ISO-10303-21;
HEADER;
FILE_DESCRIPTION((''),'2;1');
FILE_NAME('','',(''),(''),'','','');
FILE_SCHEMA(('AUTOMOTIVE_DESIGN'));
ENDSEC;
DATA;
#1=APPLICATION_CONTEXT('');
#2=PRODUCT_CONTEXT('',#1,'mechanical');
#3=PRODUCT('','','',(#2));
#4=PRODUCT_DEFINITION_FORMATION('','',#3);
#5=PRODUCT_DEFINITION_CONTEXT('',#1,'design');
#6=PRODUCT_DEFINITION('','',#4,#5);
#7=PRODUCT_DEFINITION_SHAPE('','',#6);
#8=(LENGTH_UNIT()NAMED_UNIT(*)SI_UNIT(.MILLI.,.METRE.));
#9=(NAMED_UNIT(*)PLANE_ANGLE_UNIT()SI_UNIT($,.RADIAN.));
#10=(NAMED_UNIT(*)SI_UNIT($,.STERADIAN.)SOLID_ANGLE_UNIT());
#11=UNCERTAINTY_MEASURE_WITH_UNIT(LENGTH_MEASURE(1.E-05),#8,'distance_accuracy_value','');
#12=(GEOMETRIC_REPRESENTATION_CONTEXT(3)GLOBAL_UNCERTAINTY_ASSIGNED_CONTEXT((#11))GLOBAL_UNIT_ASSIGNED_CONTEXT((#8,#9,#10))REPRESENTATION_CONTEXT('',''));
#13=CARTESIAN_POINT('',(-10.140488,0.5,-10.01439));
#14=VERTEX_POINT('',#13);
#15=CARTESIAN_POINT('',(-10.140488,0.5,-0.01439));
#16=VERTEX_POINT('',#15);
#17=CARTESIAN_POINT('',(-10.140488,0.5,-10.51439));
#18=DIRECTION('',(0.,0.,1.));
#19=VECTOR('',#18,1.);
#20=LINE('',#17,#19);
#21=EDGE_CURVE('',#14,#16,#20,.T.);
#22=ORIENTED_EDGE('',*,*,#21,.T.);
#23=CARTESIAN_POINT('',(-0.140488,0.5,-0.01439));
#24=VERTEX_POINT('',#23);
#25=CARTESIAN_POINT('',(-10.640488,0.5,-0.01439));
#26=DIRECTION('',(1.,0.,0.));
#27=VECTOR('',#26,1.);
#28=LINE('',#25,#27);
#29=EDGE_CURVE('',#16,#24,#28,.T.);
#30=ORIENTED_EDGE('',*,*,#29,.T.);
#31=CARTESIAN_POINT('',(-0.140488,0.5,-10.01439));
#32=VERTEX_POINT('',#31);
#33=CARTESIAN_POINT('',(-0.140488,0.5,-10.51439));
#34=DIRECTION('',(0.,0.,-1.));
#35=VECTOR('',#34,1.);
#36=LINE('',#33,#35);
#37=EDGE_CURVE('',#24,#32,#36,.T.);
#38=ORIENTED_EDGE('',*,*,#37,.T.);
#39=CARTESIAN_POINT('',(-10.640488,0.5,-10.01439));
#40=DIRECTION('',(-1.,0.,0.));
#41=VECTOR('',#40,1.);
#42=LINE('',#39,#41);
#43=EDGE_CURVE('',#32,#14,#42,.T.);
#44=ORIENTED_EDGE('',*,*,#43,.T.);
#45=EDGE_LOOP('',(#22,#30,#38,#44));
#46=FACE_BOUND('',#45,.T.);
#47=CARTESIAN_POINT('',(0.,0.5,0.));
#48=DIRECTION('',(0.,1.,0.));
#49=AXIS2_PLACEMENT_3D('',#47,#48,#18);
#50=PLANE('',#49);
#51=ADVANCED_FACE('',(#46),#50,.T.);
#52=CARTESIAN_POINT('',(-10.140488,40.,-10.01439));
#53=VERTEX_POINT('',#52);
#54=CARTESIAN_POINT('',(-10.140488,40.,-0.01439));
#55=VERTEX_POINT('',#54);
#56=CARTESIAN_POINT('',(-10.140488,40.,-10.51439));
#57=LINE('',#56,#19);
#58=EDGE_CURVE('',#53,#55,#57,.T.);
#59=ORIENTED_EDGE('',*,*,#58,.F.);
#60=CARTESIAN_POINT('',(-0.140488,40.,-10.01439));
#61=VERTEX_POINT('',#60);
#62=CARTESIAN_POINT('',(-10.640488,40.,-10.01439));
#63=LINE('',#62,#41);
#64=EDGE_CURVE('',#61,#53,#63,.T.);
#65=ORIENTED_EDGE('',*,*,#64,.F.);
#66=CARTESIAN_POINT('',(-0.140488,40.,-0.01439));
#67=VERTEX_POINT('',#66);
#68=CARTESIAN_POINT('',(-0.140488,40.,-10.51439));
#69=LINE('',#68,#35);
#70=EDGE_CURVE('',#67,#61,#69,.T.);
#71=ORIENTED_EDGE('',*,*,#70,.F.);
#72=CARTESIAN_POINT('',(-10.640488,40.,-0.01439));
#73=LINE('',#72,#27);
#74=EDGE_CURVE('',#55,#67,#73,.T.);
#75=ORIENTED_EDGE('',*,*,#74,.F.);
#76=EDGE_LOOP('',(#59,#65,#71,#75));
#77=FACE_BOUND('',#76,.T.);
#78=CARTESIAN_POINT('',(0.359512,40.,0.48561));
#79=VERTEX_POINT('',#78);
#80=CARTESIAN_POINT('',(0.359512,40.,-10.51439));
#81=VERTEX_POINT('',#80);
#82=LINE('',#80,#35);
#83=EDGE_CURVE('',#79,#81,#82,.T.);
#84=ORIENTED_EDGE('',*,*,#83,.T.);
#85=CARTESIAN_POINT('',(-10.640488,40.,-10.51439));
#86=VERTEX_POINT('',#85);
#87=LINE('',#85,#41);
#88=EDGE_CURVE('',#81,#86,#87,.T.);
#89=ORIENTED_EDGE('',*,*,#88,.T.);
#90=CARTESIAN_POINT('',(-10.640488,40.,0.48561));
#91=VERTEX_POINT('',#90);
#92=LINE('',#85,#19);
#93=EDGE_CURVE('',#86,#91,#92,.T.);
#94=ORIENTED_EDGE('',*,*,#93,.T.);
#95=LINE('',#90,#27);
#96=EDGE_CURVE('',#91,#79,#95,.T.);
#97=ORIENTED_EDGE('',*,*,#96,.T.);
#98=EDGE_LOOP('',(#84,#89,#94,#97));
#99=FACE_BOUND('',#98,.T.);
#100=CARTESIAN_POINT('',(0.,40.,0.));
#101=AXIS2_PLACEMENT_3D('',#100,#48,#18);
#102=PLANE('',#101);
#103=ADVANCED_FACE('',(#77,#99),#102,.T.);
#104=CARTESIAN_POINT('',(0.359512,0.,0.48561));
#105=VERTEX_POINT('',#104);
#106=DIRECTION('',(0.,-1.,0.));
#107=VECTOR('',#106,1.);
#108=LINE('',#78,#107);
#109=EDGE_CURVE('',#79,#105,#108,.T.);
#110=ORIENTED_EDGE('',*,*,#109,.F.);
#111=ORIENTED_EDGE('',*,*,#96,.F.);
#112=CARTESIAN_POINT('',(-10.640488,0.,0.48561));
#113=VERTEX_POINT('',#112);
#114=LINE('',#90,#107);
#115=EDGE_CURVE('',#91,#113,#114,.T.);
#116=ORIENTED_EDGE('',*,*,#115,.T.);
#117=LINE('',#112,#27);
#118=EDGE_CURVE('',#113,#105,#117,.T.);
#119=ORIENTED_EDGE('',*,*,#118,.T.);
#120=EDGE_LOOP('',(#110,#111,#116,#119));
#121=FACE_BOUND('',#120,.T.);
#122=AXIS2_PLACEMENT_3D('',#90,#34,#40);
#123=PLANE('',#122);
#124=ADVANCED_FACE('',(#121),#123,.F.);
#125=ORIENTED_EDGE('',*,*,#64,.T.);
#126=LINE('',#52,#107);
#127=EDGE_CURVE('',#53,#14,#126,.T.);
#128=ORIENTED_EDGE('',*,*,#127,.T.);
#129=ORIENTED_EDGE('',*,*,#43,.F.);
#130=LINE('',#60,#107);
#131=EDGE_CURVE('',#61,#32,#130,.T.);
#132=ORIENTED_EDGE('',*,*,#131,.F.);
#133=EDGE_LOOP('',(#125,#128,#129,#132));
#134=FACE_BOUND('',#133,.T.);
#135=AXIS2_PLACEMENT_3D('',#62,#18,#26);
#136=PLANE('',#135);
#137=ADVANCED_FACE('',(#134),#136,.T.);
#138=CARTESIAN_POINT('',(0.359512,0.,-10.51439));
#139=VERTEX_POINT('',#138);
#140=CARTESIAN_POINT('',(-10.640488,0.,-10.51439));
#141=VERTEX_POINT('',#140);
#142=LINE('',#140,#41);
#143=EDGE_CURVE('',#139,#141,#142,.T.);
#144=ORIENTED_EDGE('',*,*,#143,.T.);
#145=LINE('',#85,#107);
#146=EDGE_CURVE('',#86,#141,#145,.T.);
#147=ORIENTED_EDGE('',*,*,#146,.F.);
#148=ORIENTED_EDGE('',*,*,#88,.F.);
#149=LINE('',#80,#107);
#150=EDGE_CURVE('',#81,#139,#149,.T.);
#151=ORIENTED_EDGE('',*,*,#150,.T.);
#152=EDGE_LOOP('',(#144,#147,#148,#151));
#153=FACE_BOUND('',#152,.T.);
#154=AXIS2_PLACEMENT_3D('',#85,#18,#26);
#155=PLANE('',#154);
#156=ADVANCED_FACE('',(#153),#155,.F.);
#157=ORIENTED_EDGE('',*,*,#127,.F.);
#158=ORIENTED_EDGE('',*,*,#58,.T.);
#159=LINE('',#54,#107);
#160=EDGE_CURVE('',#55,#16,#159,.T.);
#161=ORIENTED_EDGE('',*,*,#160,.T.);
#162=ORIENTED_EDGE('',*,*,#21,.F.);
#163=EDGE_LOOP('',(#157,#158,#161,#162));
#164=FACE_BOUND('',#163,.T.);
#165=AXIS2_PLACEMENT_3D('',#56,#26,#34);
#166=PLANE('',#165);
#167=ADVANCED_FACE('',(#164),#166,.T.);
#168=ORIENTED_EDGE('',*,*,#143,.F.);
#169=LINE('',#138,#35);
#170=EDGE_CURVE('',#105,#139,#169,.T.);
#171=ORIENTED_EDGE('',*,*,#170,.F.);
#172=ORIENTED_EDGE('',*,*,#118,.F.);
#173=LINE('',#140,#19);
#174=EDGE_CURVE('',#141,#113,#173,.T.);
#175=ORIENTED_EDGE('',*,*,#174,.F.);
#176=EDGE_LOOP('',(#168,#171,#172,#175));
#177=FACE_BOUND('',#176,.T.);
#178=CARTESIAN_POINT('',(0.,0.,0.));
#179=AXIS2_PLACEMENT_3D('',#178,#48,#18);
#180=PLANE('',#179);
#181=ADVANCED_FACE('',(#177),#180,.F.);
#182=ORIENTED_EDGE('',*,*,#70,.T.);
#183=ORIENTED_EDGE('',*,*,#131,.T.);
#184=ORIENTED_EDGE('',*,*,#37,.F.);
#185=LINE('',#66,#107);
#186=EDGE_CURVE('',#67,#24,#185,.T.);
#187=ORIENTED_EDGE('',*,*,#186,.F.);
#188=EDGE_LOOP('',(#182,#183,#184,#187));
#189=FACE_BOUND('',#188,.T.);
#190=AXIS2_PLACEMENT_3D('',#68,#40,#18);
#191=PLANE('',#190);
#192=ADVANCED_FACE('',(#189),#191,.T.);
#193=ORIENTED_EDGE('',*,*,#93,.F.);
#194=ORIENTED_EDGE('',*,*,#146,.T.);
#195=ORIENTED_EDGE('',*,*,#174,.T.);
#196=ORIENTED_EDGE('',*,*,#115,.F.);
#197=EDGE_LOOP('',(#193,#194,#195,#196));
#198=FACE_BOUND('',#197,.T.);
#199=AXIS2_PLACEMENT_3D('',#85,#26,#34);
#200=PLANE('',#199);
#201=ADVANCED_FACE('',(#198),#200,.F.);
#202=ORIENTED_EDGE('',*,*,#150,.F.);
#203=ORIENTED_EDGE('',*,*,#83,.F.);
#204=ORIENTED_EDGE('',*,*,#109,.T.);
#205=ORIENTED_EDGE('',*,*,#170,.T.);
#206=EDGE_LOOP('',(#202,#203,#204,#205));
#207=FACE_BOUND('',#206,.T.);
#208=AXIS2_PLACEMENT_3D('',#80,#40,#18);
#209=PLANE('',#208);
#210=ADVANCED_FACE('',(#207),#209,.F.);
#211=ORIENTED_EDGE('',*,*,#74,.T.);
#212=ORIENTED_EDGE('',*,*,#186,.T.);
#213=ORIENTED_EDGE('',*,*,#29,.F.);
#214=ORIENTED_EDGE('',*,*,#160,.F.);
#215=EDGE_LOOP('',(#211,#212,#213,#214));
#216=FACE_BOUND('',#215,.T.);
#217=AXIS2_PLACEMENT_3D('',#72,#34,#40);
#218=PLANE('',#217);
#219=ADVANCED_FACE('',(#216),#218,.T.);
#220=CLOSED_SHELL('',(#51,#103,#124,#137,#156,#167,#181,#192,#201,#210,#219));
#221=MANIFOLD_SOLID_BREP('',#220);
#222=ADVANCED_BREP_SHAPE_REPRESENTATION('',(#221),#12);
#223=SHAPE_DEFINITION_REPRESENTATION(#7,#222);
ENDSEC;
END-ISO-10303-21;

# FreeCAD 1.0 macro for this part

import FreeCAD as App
import Part
import Sketcher


def faces_at(feature, points):
    """Names of the faces that lie closest to the given points."""
    faces = feature.Shape.Faces
    near = lambda p: min(range(len(faces)), key=lambda i: faces[i].distToShape(Part.Vertex(*p))[0])
    return sorted({f"Face{near(p) + 1}" for p in points})

doc = App.newDocument("Part")
body = doc.addObject("PartDesign::Body", "Body")

# Sketch on XZ plane
sketch1 = body.newObject("Sketcher::SketchObject", "Sketch")
sketch1.AttachmentSupport = (doc.getObject("XZ_Plane"), [""])
sketch1.MapMode = "FlatFace"
sketch1.addGeometry([
    Part.LineSegment(App.Vector(-11, -11, 0), App.Vector(-11, 0, 0)),
    Part.LineSegment(App.Vector(-11, 0, 0), App.Vector(0, 0, 0)),
    Part.LineSegment(App.Vector(0, 0, 0), App.Vector(0, -11, 0)),
    Part.LineSegment(App.Vector(0, -11, 0), App.Vector(-11, -11, 0)),
], False)
sketch1.addConstraint([
    Sketcher.Constraint("Coincident", 0, 2, 1, 1),
    Sketcher.Constraint("Coincident", 1, 2, 2, 1),
    Sketcher.Constraint("Coincident", 2, 2, 3, 1),
    Sketcher.Constraint("Coincident", 3, 2, 0, 1),
    Sketcher.Constraint("Vertical", 0),
    Sketcher.Constraint("Horizontal", 1),
    Sketcher.Constraint("Vertical", 2),
    Sketcher.Constraint("Horizontal", 3),
    Sketcher.Constraint("Equal", 3, 0),
    Sketcher.Constraint("DistanceX", 1, 1, 1, 2, 11.0),
    Sketcher.Constraint("DistanceY", -1, 1, 0, 2, 0.48561),
    Sketcher.Constraint("DistanceX", 0, 2, -1, 1, 10.640488),
])
pad1 = body.newObject("PartDesign::Pad", "Pad")
pad1.Profile = sketch1
pad1.Length = 40
pad1.Reversed = True
doc.recompute()

thickness = body.newObject("PartDesign::Thickness", "Thickness")
thickness.Base = (pad1, faces_at(pad1, [(-5.14, 40, -5.014)]))
thickness.Value = 0.5
thickness.Reversed = True
thickness.Join = "Intersection"

doc.recompute()
